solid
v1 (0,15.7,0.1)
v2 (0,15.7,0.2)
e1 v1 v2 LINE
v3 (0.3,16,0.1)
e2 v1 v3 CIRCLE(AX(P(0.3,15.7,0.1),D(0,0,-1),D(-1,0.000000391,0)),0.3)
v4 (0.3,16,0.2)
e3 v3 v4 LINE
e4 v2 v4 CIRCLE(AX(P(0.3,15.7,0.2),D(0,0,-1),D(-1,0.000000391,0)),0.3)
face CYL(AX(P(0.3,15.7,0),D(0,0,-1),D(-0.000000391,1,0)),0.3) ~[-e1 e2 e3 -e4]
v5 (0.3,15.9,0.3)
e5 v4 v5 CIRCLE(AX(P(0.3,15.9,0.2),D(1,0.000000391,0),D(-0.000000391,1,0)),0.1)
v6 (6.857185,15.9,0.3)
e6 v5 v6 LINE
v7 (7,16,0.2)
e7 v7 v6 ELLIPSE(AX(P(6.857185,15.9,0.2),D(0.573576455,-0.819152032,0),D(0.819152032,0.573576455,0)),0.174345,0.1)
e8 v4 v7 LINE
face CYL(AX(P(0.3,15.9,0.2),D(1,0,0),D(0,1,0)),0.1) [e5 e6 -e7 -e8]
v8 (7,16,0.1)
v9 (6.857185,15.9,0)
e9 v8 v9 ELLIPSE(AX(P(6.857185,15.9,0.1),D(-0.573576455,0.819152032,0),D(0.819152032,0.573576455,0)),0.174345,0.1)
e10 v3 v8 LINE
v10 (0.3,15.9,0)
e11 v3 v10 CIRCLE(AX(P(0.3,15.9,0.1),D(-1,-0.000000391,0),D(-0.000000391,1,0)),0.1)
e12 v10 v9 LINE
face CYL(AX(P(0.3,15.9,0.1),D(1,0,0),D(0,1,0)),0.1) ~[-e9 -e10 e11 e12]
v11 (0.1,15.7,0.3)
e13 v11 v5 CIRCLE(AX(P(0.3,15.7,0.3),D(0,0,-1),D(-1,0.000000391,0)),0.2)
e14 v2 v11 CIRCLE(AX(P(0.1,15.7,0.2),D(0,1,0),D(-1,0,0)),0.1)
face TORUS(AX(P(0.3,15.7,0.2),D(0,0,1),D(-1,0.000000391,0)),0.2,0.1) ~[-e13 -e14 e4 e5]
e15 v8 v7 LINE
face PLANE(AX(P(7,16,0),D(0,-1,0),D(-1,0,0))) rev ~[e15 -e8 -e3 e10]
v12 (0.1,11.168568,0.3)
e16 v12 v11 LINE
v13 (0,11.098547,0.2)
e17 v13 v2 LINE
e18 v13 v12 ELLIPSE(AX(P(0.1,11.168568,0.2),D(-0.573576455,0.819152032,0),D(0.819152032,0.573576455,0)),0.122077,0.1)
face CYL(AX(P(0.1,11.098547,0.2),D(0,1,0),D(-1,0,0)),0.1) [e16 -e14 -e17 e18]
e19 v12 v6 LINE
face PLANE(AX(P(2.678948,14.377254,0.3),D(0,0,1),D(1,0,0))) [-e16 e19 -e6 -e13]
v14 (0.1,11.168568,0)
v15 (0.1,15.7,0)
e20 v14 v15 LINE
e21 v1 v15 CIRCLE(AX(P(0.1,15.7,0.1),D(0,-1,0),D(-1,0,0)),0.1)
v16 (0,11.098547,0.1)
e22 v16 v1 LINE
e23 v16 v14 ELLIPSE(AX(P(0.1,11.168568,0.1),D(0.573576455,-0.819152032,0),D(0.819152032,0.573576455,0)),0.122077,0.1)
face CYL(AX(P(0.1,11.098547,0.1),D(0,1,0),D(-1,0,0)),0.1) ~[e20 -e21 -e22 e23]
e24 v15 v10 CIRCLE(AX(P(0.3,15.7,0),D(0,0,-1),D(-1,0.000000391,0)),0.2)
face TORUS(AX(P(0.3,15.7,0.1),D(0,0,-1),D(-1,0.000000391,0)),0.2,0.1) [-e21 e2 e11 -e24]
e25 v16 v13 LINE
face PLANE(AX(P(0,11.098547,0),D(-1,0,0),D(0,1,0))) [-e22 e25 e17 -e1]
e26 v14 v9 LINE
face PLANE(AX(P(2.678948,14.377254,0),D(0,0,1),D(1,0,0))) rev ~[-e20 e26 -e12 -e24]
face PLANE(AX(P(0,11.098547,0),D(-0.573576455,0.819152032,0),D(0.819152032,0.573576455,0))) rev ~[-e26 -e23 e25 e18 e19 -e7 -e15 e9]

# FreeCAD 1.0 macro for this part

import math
import FreeCAD as App
import Part
import Sketcher
Q = App.Units.Quantity


def edges_at(feature, points):
    """Names of the edges that pass closest to the given points."""
    edges = feature.Shape.Edges
    near = lambda p: min(range(len(edges)), key=lambda i: edges[i].distToShape(Part.Vertex(*p))[0])
    return sorted({f"Edge{near(p) + 1}" for p in points})

doc = App.newDocument("Part")
body = doc.addObject("PartDesign::Body", "Body")

sketch1 = body.newObject("Sketcher::SketchObject", "Sketch")
sketch1.AttachmentSupport = (doc.getObject("XY_Plane"), [""])
sketch1.MapMode = "FlatFace"
sketch1.addGeometry(Part.LineSegment(App.Vector(0, 11.1, 0), App.Vector(7, 16, 0)), False)
sketch1.addGeometry(Part.LineSegment(App.Vector(7, 16, 0), App.Vector(0.3, 16, 0)), False)
sketch1.addGeometry(Part.ArcOfCircle(Part.Circle(App.Vector(0.3, 15.7, 0), App.Vector(0, 0, 1), 0.3), math.radians(90), math.radians(180)), False)
sketch1.addGeometry(Part.LineSegment(App.Vector(0, 15.7, 0), App.Vector(0, 11.1, 0)), False)
sketch1.addConstraint(Sketcher.Constraint("Coincident", 0, 2, 1, 1))
sketch1.addConstraint(Sketcher.Constraint("Tangent", 1, 2, 2, 1))
sketch1.addConstraint(Sketcher.Constraint("Tangent", 2, 2, 3, 1))
sketch1.addConstraint(Sketcher.Constraint("Coincident", 3, 2, 0, 1))
sketch1.addConstraint(Sketcher.Constraint("Horizontal", 1))
sketch1.addConstraint(Sketcher.Constraint("Vertical", 3))
sketch1.addConstraint(Sketcher.Constraint("PointOnObject", 2, 2, -2))
sketch1.addConstraint(Sketcher.Constraint("Radius", 2, Q("0.3 mm")))
sketch1.addConstraint(Sketcher.Constraint("Angle", 0, Q("35.000001 deg")))
sketch1.addConstraint(Sketcher.Constraint("DistanceX", 1, 2, 1, 1, Q("6.7 mm")))
sketch1.addConstraint(Sketcher.Constraint("DistanceY", -1, 1, 0, 2, Q("16 mm")))
pad1 = body.newObject("PartDesign::Pad", "Pad")
pad1.Profile = sketch1
pad1.Length = 0.3
doc.recompute()

fillet = body.newObject("PartDesign::Fillet", "Fillet")
fillet.Base = (pad1, edges_at(pad1, [(0, 13.399, 0.3), (0.088, 15.912, 0.3), (3.65, 16, 0.3)]))
fillet.Radius = 0.1
doc.recompute()

fillet2 = body.newObject("PartDesign::Fillet", "Fillet001")
fillet2.Base = (fillet, edges_at(fillet, [(0, 13.399, 0), (0.088, 15.912, 0), (3.65, 16, 0)]))
fillet2.Radius = 0.1

doc.recompute()
